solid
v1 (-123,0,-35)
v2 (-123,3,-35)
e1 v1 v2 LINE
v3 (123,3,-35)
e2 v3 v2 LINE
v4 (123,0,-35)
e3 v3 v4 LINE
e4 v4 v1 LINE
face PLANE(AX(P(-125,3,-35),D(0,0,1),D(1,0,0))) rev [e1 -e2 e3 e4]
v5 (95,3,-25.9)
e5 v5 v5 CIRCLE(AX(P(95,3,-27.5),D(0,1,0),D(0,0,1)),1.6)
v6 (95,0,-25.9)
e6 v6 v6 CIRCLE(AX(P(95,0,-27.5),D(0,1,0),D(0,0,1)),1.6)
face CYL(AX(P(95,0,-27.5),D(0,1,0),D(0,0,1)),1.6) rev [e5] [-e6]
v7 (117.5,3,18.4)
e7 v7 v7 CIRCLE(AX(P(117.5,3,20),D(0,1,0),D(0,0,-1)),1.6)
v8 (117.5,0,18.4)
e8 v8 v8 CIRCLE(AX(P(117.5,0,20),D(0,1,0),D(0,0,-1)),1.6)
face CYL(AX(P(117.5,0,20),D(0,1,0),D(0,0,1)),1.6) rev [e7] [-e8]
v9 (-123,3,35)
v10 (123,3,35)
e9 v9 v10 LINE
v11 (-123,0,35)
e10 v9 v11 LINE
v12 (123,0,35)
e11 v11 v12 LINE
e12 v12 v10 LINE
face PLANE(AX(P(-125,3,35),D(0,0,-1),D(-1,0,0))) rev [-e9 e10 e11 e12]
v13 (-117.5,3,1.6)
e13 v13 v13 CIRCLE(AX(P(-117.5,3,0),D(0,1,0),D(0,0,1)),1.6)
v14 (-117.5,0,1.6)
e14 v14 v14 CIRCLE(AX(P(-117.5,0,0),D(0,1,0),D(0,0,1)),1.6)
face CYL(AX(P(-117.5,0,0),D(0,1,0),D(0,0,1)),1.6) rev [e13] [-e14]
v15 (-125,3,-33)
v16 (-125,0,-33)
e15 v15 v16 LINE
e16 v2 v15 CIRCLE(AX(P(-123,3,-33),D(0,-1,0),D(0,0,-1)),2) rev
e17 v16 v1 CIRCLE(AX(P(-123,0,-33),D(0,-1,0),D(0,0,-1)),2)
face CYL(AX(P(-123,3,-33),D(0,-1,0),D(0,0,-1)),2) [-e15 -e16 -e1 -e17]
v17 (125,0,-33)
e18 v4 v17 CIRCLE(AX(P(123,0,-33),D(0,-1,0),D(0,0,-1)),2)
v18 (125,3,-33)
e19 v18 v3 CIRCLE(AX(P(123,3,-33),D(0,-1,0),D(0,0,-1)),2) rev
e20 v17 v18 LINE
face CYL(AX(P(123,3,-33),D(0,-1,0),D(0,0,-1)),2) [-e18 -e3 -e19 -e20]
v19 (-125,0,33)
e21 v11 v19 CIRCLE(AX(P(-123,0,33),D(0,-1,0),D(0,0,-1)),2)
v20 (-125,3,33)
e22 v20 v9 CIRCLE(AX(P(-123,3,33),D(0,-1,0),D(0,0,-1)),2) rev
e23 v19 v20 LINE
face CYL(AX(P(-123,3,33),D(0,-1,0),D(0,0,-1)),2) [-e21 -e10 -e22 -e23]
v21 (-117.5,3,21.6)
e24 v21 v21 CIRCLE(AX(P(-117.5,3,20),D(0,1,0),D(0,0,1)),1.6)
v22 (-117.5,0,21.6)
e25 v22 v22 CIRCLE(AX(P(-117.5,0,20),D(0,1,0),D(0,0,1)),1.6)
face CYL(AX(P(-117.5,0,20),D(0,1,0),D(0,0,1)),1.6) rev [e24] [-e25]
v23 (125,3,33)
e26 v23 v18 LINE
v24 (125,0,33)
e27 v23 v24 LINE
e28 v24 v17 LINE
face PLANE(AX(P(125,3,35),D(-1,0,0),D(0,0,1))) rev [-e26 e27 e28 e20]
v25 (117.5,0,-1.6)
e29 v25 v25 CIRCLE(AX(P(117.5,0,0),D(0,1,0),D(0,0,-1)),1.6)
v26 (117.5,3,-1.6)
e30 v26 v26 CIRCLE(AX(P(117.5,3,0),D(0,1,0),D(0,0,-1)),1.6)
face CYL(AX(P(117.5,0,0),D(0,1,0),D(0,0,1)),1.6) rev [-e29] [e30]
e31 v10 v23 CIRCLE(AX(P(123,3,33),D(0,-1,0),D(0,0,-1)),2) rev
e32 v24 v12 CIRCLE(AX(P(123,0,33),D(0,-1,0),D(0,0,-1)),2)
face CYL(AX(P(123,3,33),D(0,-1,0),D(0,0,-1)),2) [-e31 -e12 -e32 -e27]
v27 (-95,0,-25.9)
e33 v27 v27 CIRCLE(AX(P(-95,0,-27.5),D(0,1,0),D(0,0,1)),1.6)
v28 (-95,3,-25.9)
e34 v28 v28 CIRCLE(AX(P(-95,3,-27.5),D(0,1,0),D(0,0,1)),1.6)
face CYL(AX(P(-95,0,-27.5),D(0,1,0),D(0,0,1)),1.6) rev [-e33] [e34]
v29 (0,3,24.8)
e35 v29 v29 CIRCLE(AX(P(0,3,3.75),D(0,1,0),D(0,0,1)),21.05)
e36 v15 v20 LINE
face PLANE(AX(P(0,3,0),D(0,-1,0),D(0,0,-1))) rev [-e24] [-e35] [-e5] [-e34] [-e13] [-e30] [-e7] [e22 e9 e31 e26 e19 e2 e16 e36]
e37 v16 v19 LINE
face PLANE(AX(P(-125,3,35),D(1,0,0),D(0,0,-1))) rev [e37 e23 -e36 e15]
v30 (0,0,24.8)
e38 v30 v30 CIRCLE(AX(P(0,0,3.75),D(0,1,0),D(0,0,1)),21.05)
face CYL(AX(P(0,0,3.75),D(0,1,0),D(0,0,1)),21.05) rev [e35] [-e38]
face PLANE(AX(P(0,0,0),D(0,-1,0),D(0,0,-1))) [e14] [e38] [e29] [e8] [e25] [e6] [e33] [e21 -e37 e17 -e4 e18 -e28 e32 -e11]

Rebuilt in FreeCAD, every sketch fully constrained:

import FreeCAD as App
import Part
import Sketcher

V = App.Vector
Q = App.Units.Quantity


def edges_at(feature, points):
    """Names of the edges that pass closest to the given points."""
    edges = feature.Shape.Edges
    near = lambda p: min(range(len(edges)), key=lambda i: edges[i].distToShape(Part.Vertex(*p))[0])
    return sorted({f"Edge{near(p) + 1}" for p in points})

doc = App.newDocument("Part")
body = doc.addObject("PartDesign::Body", "Body")

sketch1 = body.newObject("Sketcher::SketchObject", "Sketch")
sketch1.AttachmentSupport = (doc.getObject("XZ_Plane"), [""])
sketch1.MapMode = "FlatFace"
sketch1.addGeometry([
    Part.LineSegment(V(-125, -35, 0), V(-125, 35, 0)),
    Part.LineSegment(V(-125, 35, 0), V(125, 35, 0)),
    Part.LineSegment(V(125, 35, 0), V(125, -35, 0)),
    Part.LineSegment(V(125, -35, 0), V(-125, -35, 0)),
], False)
sketch1.addConstraint([
    Sketcher.Constraint("Coincident", 0, 2, 1, 1),
    Sketcher.Constraint("Coincident", 1, 2, 2, 1),
    Sketcher.Constraint("Coincident", 2, 2, 3, 1),
    Sketcher.Constraint("Coincident", 3, 2, 0, 1),
    Sketcher.Constraint("Vertical", 0),
    Sketcher.Constraint("Horizontal", 1),
    Sketcher.Constraint("Vertical", 2),
    Sketcher.Constraint("Horizontal", 3),
    Sketcher.Constraint("Symmetric", 0, 2, 2, 2, -1, 1),
    Sketcher.Constraint("DistanceX", 1, 1, 1, 2, Q("250 mm")),
    Sketcher.Constraint("DistanceY", 0, 1, 0, 2, Q("70 mm")),
])
pad1 = body.newObject("PartDesign::Pad", "Pad")
pad1.Profile = sketch1
pad1.Length = 3
pad1.Reversed = True

sketch2 = body.newObject("Sketcher::SketchObject", "Sketch001")
sketch2.AttachmentSupport = (doc.getObject("XZ_Plane"), [""])
sketch2.MapMode = "FlatFace"
sketch2.AttachmentOffset = App.Placement(V(0, 0, -3), App.Rotation())
sketch2.addGeometry([
    Part.Circle(V(-95, -27.5, 0), V(0, 0, 1), 1.6),
    Part.Circle(V(95, -27.5, 0), V(0, 0, 1), 1.6),
    Part.Circle(V(-117.5, 0, 0), V(0, 0, 1), 1.6),
    Part.Circle(V(-117.5, 20, 0), V(0, 0, 1), 1.6),
    Part.Circle(V(117.5, 20, 0), V(0, 0, 1), 1.6),
    Part.Circle(V(117.5, 0, 0), V(0, 0, 1), 1.6),
], False)
sketch2.addConstraint([
    Sketcher.Constraint("Equal", 0, 1),
    Sketcher.Constraint("Equal", 1, 2),
    Sketcher.Constraint("Equal", 2, 3),
    Sketcher.Constraint("Equal", 3, 4),
    Sketcher.Constraint("Equal", 4, 5),
    Sketcher.Constraint("Symmetric", 2, 3, 5, 3, -1, 1),
    Sketcher.Constraint("Symmetric", 0, 3, 1, 3, -2),
    Sketcher.Constraint("Symmetric", 3, 3, 4, 3, -2),
    Sketcher.Constraint("PointOnObject", 2, 3, -1),
    Sketcher.Constraint("Vertical", 2, 3, 3, 3),
    Sketcher.Constraint("Diameter", 0, Q("3.2 mm")),
    Sketcher.Constraint("DistanceX", 0, 3, -1, 1, Q("95 mm")),
    Sketcher.Constraint("DistanceY", -1, 1, 3, 3, Q("20 mm")),
    Sketcher.Constraint("DistanceX", 3, 3, 4, 3, Q("235 mm")),
    Sketcher.Constraint("DistanceY", 0, 3, -1, 1, Q("27.5 mm")),
])
pocket1 = body.newObject("PartDesign::Pocket", "Pocket")
pocket1.Profile = sketch2
pocket1.Type = "ThroughAll"
pocket1.Reversed = True
doc.recompute()

fillet = body.newObject("PartDesign::Fillet", "Fillet")
fillet.Base = (pocket1, edges_at(pocket1, [
    (125, 1.5, 35),
    (-125, 1.5, 35),
    (-125, 1.5, -35),
    (125, 1.5, -35),
]))
fillet.Radius = 2

sketch3 = body.newObject("Sketcher::SketchObject", "Sketch002")
sketch3.AttachmentSupport = (doc.getObject("XZ_Plane"), [""])
sketch3.MapMode = "FlatFace"
sketch3.AttachmentOffset = App.Placement(V(0, 0, -3), App.Rotation())
sketch3.addGeometry(Part.Circle(V(0, 4, 0), V(0, 0, 1), 21), False)
sketch3.addConstraint([
    Sketcher.Constraint("PointOnObject", 0, 3, -2),
    Sketcher.Constraint("Diameter", 0, Q("42.1 mm")),
    Sketcher.Constraint("DistanceY", -1, 1, 0, 3, Q("3.75 mm")),
])
pocket2 = body.newObject("PartDesign::Pocket", "Pocket001")
pocket2.Profile = sketch3
pocket2.Type = "ThroughAll"
pocket2.Reversed = True

doc.recompute()
